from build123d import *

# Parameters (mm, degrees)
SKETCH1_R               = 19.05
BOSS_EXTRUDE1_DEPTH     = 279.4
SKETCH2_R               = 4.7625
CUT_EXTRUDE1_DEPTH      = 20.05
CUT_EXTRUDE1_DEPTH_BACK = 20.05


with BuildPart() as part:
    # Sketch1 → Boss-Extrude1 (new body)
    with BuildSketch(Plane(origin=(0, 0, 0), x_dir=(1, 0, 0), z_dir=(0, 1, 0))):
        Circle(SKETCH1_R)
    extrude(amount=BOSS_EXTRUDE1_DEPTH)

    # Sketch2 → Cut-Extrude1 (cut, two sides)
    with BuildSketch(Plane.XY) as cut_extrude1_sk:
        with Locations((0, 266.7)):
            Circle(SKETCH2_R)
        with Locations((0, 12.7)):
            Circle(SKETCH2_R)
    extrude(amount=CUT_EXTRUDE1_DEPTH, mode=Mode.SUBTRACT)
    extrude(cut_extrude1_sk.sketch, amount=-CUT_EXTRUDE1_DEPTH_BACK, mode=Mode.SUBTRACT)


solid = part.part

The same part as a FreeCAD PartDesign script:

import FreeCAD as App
import Part
import Sketcher

V = App.Vector
Q = App.Units.Quantity

doc = App.newDocument("Part")
body = doc.addObject("PartDesign::Body", "Body")

# Sketch on XZ plane
sketch1 = doc.addObject("Sketcher::SketchObject", "Sketch")
body.addObject(sketch1)
sketch1.AttachmentSupport = (doc.XZ_Plane, [""])
sketch1.MapMode = "FlatFace"
sketch1.addGeometry(Part.Circle(V(0, 0, 0), V(0, 0, 1), 19.05), False)
sketch1.addConstraint([
    Sketcher.Constraint("Coincident", 0, 3, -1, 1),
    Sketcher.Constraint("Diameter", 0, Q("1.5 in")),
])
pad1 = doc.addObject("PartDesign::Pad", "Pad")
body.addObject(pad1)
pad1.Profile = sketch1
pad1.Length = Q("11 in")
pad1.Reversed = True

# Sketch on XY plane
sketch2 = doc.addObject("Sketcher::SketchObject", "Sketch001")
body.addObject(sketch2)
sketch2.AttachmentSupport = (doc.XY_Plane, [""])
sketch2.MapMode = "FlatFace"
sketch2.addGeometry([
    Part.Circle(V(0, 266.7, 0), V(0, 0, 1), 4.7625),
    Part.Circle(V(0, 12.7, 0), V(0, 0, 1), 4.7625),
], False)
sketch2.addConstraint([
    Sketcher.Constraint("Equal", 0, 1),
    Sketcher.Constraint("PointOnObject", 0, 3, -2),
    Sketcher.Constraint("PointOnObject", 1, 3, -2),
    Sketcher.Constraint("Diameter", 0, Q("0.375 in")),
    Sketcher.Constraint("DistanceY", 1, 3, 0, 3, Q("10 in")),
    Sketcher.Constraint("DistanceY", -1, 1, 0, 3, Q("10.5 in")),
])
pocket1 = doc.addObject("PartDesign::Pocket", "Pocket")
body.addObject(pocket1)
pocket1.Profile = sketch2
pocket1.Type = "ThroughAll"
pocket1.Midplane = True

doc.recompute()
